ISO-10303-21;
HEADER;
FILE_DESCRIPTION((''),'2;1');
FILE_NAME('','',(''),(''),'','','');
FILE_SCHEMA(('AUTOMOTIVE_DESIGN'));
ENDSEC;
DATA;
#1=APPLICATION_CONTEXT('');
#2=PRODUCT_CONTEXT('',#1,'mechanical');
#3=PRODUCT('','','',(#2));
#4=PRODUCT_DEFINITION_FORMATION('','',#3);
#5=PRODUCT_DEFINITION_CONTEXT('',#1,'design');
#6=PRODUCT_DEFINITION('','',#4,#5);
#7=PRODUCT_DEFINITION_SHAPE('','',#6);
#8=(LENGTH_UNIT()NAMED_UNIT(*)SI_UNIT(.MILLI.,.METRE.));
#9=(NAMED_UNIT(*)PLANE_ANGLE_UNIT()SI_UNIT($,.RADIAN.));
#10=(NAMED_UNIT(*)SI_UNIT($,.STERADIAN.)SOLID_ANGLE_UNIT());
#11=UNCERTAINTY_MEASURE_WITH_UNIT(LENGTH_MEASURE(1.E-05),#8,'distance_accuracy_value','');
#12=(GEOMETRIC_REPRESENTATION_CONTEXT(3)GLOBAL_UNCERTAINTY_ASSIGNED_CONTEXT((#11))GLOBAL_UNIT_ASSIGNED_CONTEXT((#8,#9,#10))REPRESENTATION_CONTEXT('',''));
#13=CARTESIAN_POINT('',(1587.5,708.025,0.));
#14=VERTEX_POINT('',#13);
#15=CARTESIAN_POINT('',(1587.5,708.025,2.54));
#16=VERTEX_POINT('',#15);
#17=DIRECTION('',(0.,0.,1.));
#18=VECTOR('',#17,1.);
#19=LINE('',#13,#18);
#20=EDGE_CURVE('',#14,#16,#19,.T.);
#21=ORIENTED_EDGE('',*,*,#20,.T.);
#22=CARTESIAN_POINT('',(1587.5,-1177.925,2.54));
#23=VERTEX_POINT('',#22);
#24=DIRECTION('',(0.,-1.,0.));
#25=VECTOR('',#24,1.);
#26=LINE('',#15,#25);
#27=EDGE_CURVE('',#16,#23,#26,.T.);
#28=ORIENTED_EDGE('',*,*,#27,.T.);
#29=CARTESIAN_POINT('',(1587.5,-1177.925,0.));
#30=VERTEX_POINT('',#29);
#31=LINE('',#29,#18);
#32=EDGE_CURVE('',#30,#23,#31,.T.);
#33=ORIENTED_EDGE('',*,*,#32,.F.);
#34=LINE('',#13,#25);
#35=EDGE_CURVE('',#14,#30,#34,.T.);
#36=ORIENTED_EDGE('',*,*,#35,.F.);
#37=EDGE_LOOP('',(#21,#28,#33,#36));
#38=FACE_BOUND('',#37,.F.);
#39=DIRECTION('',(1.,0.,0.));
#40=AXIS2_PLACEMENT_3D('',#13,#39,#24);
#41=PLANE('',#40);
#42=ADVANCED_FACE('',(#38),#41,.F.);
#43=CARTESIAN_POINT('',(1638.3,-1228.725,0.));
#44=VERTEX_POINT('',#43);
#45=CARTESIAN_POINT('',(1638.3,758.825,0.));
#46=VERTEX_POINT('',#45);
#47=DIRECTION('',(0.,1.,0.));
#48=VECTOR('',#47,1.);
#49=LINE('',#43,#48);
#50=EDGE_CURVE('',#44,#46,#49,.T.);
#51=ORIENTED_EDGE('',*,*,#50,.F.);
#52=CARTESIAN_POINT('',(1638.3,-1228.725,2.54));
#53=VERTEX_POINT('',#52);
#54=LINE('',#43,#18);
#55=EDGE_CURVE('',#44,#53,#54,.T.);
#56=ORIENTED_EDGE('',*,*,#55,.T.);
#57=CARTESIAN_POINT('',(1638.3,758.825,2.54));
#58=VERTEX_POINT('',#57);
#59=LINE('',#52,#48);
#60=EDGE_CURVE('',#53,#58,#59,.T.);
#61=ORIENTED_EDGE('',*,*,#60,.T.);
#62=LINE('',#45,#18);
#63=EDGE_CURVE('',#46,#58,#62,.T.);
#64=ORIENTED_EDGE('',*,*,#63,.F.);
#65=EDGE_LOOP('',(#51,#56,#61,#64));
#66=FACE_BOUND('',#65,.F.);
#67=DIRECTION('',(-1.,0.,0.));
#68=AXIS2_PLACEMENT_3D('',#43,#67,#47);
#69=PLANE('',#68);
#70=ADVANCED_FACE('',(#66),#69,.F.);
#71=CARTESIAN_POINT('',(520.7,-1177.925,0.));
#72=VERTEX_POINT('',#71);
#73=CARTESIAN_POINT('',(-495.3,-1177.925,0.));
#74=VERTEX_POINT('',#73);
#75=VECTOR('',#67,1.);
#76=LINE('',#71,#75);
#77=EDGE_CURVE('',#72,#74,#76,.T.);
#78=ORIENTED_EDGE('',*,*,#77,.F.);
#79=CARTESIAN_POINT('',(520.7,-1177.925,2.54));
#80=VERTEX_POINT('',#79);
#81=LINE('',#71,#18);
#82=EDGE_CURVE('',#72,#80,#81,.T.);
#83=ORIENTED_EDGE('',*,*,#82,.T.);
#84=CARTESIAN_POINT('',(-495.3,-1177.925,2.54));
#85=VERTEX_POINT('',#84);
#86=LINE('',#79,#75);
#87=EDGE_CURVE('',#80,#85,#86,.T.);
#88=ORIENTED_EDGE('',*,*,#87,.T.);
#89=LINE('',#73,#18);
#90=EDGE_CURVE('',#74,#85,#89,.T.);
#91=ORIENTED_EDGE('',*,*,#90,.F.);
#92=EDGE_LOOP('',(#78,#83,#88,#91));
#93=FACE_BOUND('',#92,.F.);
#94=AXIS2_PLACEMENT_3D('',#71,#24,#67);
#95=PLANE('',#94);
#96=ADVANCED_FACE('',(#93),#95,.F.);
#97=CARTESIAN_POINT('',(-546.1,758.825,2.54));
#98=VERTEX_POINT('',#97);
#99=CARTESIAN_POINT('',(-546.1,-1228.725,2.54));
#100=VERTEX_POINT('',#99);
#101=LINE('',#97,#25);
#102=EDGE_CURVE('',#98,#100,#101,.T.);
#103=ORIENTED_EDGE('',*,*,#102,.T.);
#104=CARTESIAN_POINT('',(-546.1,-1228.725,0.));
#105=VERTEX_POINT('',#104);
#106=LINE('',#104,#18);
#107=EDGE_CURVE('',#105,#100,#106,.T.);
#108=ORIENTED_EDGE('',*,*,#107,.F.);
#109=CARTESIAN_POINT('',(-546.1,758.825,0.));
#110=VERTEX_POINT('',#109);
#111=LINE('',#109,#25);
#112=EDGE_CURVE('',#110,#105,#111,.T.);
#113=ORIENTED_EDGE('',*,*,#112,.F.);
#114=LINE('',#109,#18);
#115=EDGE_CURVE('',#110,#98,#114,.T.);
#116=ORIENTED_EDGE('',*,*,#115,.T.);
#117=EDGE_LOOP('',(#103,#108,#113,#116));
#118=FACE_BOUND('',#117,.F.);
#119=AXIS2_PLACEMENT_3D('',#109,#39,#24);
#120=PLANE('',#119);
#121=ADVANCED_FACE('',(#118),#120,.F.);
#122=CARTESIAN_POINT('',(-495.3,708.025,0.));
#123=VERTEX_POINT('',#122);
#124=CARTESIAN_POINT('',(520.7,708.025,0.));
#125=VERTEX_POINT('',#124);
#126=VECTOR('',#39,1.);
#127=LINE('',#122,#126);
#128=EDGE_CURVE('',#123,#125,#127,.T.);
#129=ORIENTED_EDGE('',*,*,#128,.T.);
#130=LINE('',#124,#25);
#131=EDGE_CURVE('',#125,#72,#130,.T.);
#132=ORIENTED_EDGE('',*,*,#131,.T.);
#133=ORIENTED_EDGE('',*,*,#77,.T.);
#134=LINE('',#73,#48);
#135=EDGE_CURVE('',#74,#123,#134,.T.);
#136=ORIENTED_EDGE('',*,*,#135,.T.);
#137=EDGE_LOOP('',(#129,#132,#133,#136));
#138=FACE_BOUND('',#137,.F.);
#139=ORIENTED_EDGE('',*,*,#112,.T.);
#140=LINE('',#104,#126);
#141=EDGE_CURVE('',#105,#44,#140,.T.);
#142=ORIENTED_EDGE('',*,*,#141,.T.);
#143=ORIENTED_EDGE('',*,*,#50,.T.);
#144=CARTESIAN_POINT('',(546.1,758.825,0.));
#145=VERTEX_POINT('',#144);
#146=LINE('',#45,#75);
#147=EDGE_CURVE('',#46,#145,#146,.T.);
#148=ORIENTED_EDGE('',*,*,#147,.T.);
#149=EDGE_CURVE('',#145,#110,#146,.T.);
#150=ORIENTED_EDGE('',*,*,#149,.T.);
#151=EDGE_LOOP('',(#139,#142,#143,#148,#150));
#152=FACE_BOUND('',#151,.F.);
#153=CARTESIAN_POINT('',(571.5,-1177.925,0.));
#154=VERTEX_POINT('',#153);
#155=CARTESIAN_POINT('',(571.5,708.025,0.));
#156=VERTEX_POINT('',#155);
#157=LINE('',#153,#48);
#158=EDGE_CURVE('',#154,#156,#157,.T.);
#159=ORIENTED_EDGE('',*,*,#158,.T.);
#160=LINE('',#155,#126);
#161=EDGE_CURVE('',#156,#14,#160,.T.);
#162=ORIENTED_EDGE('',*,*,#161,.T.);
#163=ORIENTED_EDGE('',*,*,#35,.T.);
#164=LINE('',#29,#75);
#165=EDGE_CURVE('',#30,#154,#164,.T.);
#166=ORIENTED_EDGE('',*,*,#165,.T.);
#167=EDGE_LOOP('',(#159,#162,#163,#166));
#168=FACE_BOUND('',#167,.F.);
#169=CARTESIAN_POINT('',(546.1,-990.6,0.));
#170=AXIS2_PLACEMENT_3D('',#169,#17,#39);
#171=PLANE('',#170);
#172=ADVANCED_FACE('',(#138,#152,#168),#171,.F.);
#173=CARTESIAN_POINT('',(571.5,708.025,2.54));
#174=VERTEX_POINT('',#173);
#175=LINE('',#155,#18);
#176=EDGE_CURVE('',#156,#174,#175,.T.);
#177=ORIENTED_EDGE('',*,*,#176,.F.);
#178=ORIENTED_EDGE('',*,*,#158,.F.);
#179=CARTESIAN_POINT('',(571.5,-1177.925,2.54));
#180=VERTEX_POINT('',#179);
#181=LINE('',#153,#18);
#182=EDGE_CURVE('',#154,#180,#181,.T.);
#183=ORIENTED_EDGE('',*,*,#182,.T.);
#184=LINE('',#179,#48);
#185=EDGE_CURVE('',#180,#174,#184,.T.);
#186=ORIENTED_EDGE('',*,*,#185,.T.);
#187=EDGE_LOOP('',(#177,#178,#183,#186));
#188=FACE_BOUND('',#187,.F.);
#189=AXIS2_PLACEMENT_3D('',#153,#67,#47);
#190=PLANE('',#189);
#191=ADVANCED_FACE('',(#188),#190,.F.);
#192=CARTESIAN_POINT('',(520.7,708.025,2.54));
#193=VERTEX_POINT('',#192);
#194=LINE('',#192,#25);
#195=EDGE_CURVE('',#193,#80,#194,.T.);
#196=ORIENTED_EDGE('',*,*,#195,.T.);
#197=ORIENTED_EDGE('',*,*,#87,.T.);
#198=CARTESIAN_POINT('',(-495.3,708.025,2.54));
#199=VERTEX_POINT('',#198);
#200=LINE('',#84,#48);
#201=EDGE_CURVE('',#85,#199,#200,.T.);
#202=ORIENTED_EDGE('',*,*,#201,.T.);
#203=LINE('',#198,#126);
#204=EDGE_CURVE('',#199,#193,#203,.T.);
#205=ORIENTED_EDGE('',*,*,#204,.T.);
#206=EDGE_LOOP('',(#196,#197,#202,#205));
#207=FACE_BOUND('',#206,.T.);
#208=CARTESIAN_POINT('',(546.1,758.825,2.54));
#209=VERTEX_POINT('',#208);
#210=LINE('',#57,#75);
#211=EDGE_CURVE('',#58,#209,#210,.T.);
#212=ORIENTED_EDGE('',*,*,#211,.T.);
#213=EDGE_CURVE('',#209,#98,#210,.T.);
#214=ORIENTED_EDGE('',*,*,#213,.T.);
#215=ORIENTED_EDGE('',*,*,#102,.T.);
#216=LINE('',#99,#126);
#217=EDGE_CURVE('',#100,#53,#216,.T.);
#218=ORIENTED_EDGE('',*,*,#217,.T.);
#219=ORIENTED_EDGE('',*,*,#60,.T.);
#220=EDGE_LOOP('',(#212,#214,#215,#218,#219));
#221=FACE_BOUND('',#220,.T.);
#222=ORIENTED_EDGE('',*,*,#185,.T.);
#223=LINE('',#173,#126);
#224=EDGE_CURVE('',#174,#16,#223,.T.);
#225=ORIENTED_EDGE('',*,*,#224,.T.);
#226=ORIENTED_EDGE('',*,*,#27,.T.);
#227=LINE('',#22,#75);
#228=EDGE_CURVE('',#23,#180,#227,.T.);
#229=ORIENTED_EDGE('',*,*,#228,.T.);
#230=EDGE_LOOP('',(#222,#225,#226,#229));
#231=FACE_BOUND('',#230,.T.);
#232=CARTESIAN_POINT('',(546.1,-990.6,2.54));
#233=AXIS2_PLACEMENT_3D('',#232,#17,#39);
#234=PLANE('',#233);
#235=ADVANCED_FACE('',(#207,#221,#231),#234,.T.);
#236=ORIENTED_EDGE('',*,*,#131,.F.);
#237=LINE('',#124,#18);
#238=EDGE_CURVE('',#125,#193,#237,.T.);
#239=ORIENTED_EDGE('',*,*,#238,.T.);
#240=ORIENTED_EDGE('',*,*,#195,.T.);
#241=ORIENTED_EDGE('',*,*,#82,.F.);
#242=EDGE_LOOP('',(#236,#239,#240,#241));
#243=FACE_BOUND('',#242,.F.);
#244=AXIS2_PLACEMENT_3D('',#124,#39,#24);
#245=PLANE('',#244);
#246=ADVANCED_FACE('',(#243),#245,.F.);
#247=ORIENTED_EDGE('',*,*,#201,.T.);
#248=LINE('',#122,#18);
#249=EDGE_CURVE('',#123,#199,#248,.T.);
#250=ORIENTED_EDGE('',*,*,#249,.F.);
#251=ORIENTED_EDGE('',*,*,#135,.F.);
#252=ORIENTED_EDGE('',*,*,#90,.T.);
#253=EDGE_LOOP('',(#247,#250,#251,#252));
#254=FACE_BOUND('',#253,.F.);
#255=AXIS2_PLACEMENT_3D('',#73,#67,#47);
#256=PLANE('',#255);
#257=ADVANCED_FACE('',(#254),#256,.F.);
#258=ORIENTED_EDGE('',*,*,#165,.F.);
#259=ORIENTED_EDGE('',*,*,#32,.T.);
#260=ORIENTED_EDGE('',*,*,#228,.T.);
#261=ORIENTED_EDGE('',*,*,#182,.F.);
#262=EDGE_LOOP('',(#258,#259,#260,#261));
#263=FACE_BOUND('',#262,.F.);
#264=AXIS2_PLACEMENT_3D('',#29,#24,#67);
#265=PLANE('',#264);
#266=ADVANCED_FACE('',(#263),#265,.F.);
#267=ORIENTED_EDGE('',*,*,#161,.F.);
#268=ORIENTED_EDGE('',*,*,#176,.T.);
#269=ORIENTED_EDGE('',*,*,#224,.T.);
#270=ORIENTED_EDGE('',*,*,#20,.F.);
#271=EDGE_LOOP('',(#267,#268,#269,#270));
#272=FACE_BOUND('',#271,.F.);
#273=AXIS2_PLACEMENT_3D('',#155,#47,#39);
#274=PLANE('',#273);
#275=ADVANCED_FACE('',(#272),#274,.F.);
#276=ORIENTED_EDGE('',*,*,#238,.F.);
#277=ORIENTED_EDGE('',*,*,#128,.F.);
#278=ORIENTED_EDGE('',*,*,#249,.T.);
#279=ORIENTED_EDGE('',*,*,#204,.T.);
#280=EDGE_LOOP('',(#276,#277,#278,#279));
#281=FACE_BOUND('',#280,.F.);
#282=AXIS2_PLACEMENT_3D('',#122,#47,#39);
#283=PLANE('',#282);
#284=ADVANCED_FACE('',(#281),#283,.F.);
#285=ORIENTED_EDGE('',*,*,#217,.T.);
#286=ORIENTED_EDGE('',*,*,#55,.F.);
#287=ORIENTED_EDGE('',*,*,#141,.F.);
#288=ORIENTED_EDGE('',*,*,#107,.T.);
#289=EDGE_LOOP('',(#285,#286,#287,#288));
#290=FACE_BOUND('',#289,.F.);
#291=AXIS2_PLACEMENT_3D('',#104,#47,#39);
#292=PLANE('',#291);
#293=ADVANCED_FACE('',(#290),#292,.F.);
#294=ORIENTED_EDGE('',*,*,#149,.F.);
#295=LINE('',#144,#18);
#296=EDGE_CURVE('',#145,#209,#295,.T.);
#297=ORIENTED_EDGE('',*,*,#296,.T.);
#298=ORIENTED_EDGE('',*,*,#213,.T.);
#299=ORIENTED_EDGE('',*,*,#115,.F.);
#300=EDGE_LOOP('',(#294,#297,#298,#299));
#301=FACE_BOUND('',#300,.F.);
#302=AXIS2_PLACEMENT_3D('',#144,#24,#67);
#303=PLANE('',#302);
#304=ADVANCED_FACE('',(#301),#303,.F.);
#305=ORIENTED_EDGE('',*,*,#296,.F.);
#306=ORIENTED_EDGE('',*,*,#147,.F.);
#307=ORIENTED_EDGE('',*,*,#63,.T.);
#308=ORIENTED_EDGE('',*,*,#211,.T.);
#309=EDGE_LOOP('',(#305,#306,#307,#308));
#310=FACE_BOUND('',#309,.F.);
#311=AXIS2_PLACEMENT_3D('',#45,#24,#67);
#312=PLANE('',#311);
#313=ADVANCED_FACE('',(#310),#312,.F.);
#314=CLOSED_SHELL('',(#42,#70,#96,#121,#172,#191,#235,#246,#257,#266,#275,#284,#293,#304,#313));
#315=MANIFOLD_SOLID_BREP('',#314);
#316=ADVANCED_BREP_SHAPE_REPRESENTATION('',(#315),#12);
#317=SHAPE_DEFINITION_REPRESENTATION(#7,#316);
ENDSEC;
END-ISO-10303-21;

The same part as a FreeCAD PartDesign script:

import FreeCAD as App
import Part
import Sketcher

V = App.Vector
Q = App.Units.Quantity


def add_polygon(sketch, points):
    """Adds a closed chain of lines whose ends are joined by coincident constraints."""
    first, n = sketch.GeometryCount, len(points)
    for a, b in zip(points, points[1:] + points[:1]):
        sketch.addGeometry(Part.LineSegment(App.Vector(*a, 0), App.Vector(*b, 0)), False)
    for i in range(n):
        sketch.addConstraint(Sketcher.Constraint("Coincident", first + i, 2, first + (i + 1) % n, 1))

doc = App.newDocument("Part")
body = doc.addObject("PartDesign::Body", "Body")

# Sketch on XY plane
sketch1 = doc.addObject("Sketcher::SketchObject", "Sketch")
body.addObject(sketch1)
sketch1.AttachmentSupport = (doc.XY_Plane, [""])
sketch1.MapMode = "FlatFace"
add_polygon(sketch1, [(-546, 759), (-546, -1229), (1638, -1229), (1638, 759)])  # lines 0-3
add_polygon(sketch1, [(521, -1178), (-495, -1178), (-495, 708), (521, 708)])  # lines 4-7
add_polygon(sketch1, [(572, 708), (1588, 708), (1588, -1178), (572, -1178)])  # lines 8-11
sketch1.addConstraint([
    Sketcher.Constraint("Vertical", 0),
    Sketcher.Constraint("Horizontal", 1),
    Sketcher.Constraint("Vertical", 2),
    Sketcher.Constraint("Horizontal", 3),
    Sketcher.Constraint("Horizontal", 4),
    Sketcher.Constraint("Vertical", 5),
    Sketcher.Constraint("Horizontal", 6),
    Sketcher.Constraint("Vertical", 7),
    Sketcher.Constraint("Horizontal", 8),
    Sketcher.Constraint("Vertical", 9),
    Sketcher.Constraint("Horizontal", 10),
    Sketcher.Constraint("Vertical", 11),
    Sketcher.Constraint("Horizontal", 6, 2, 8, 2),
    Sketcher.Constraint("Horizontal", 7, 2, 9, 2),
    Sketcher.Constraint("Equal", 6, 8),
    Sketcher.Constraint("DistanceX", 0, 2, 4, 2, Q("2 in")),
    Sketcher.Constraint("DistanceY", 0, 2, 4, 2, Q("2 in")),
    Sketcher.Constraint("DistanceY", 5, 2, 3, 2, Q("2 in")),
    Sketcher.Constraint("DistanceX", 8, 2, 2, 2, Q("2 in")),
    Sketcher.Constraint("DistanceX", 7, 2, 10, 2, Q("2 in")),
    Sketcher.Constraint("DistanceX", 1, 1, 1, 2, Q("86 in")),
    Sketcher.Constraint("DistanceY", 0, 2, 0, 1, Q("78.25 in")),
    Sketcher.Constraint("DistanceX", 0, 2, -1, 1, Q("21.5 in")),
    Sketcher.Constraint("DistanceY", 0, 2, -1, 1, Q("48.375 in")),
])
pad1 = doc.addObject("PartDesign::Pad", "Pad")
body.addObject(pad1)
pad1.Profile = sketch1
pad1.Length = Q("0.1 in")

doc.recompute()
